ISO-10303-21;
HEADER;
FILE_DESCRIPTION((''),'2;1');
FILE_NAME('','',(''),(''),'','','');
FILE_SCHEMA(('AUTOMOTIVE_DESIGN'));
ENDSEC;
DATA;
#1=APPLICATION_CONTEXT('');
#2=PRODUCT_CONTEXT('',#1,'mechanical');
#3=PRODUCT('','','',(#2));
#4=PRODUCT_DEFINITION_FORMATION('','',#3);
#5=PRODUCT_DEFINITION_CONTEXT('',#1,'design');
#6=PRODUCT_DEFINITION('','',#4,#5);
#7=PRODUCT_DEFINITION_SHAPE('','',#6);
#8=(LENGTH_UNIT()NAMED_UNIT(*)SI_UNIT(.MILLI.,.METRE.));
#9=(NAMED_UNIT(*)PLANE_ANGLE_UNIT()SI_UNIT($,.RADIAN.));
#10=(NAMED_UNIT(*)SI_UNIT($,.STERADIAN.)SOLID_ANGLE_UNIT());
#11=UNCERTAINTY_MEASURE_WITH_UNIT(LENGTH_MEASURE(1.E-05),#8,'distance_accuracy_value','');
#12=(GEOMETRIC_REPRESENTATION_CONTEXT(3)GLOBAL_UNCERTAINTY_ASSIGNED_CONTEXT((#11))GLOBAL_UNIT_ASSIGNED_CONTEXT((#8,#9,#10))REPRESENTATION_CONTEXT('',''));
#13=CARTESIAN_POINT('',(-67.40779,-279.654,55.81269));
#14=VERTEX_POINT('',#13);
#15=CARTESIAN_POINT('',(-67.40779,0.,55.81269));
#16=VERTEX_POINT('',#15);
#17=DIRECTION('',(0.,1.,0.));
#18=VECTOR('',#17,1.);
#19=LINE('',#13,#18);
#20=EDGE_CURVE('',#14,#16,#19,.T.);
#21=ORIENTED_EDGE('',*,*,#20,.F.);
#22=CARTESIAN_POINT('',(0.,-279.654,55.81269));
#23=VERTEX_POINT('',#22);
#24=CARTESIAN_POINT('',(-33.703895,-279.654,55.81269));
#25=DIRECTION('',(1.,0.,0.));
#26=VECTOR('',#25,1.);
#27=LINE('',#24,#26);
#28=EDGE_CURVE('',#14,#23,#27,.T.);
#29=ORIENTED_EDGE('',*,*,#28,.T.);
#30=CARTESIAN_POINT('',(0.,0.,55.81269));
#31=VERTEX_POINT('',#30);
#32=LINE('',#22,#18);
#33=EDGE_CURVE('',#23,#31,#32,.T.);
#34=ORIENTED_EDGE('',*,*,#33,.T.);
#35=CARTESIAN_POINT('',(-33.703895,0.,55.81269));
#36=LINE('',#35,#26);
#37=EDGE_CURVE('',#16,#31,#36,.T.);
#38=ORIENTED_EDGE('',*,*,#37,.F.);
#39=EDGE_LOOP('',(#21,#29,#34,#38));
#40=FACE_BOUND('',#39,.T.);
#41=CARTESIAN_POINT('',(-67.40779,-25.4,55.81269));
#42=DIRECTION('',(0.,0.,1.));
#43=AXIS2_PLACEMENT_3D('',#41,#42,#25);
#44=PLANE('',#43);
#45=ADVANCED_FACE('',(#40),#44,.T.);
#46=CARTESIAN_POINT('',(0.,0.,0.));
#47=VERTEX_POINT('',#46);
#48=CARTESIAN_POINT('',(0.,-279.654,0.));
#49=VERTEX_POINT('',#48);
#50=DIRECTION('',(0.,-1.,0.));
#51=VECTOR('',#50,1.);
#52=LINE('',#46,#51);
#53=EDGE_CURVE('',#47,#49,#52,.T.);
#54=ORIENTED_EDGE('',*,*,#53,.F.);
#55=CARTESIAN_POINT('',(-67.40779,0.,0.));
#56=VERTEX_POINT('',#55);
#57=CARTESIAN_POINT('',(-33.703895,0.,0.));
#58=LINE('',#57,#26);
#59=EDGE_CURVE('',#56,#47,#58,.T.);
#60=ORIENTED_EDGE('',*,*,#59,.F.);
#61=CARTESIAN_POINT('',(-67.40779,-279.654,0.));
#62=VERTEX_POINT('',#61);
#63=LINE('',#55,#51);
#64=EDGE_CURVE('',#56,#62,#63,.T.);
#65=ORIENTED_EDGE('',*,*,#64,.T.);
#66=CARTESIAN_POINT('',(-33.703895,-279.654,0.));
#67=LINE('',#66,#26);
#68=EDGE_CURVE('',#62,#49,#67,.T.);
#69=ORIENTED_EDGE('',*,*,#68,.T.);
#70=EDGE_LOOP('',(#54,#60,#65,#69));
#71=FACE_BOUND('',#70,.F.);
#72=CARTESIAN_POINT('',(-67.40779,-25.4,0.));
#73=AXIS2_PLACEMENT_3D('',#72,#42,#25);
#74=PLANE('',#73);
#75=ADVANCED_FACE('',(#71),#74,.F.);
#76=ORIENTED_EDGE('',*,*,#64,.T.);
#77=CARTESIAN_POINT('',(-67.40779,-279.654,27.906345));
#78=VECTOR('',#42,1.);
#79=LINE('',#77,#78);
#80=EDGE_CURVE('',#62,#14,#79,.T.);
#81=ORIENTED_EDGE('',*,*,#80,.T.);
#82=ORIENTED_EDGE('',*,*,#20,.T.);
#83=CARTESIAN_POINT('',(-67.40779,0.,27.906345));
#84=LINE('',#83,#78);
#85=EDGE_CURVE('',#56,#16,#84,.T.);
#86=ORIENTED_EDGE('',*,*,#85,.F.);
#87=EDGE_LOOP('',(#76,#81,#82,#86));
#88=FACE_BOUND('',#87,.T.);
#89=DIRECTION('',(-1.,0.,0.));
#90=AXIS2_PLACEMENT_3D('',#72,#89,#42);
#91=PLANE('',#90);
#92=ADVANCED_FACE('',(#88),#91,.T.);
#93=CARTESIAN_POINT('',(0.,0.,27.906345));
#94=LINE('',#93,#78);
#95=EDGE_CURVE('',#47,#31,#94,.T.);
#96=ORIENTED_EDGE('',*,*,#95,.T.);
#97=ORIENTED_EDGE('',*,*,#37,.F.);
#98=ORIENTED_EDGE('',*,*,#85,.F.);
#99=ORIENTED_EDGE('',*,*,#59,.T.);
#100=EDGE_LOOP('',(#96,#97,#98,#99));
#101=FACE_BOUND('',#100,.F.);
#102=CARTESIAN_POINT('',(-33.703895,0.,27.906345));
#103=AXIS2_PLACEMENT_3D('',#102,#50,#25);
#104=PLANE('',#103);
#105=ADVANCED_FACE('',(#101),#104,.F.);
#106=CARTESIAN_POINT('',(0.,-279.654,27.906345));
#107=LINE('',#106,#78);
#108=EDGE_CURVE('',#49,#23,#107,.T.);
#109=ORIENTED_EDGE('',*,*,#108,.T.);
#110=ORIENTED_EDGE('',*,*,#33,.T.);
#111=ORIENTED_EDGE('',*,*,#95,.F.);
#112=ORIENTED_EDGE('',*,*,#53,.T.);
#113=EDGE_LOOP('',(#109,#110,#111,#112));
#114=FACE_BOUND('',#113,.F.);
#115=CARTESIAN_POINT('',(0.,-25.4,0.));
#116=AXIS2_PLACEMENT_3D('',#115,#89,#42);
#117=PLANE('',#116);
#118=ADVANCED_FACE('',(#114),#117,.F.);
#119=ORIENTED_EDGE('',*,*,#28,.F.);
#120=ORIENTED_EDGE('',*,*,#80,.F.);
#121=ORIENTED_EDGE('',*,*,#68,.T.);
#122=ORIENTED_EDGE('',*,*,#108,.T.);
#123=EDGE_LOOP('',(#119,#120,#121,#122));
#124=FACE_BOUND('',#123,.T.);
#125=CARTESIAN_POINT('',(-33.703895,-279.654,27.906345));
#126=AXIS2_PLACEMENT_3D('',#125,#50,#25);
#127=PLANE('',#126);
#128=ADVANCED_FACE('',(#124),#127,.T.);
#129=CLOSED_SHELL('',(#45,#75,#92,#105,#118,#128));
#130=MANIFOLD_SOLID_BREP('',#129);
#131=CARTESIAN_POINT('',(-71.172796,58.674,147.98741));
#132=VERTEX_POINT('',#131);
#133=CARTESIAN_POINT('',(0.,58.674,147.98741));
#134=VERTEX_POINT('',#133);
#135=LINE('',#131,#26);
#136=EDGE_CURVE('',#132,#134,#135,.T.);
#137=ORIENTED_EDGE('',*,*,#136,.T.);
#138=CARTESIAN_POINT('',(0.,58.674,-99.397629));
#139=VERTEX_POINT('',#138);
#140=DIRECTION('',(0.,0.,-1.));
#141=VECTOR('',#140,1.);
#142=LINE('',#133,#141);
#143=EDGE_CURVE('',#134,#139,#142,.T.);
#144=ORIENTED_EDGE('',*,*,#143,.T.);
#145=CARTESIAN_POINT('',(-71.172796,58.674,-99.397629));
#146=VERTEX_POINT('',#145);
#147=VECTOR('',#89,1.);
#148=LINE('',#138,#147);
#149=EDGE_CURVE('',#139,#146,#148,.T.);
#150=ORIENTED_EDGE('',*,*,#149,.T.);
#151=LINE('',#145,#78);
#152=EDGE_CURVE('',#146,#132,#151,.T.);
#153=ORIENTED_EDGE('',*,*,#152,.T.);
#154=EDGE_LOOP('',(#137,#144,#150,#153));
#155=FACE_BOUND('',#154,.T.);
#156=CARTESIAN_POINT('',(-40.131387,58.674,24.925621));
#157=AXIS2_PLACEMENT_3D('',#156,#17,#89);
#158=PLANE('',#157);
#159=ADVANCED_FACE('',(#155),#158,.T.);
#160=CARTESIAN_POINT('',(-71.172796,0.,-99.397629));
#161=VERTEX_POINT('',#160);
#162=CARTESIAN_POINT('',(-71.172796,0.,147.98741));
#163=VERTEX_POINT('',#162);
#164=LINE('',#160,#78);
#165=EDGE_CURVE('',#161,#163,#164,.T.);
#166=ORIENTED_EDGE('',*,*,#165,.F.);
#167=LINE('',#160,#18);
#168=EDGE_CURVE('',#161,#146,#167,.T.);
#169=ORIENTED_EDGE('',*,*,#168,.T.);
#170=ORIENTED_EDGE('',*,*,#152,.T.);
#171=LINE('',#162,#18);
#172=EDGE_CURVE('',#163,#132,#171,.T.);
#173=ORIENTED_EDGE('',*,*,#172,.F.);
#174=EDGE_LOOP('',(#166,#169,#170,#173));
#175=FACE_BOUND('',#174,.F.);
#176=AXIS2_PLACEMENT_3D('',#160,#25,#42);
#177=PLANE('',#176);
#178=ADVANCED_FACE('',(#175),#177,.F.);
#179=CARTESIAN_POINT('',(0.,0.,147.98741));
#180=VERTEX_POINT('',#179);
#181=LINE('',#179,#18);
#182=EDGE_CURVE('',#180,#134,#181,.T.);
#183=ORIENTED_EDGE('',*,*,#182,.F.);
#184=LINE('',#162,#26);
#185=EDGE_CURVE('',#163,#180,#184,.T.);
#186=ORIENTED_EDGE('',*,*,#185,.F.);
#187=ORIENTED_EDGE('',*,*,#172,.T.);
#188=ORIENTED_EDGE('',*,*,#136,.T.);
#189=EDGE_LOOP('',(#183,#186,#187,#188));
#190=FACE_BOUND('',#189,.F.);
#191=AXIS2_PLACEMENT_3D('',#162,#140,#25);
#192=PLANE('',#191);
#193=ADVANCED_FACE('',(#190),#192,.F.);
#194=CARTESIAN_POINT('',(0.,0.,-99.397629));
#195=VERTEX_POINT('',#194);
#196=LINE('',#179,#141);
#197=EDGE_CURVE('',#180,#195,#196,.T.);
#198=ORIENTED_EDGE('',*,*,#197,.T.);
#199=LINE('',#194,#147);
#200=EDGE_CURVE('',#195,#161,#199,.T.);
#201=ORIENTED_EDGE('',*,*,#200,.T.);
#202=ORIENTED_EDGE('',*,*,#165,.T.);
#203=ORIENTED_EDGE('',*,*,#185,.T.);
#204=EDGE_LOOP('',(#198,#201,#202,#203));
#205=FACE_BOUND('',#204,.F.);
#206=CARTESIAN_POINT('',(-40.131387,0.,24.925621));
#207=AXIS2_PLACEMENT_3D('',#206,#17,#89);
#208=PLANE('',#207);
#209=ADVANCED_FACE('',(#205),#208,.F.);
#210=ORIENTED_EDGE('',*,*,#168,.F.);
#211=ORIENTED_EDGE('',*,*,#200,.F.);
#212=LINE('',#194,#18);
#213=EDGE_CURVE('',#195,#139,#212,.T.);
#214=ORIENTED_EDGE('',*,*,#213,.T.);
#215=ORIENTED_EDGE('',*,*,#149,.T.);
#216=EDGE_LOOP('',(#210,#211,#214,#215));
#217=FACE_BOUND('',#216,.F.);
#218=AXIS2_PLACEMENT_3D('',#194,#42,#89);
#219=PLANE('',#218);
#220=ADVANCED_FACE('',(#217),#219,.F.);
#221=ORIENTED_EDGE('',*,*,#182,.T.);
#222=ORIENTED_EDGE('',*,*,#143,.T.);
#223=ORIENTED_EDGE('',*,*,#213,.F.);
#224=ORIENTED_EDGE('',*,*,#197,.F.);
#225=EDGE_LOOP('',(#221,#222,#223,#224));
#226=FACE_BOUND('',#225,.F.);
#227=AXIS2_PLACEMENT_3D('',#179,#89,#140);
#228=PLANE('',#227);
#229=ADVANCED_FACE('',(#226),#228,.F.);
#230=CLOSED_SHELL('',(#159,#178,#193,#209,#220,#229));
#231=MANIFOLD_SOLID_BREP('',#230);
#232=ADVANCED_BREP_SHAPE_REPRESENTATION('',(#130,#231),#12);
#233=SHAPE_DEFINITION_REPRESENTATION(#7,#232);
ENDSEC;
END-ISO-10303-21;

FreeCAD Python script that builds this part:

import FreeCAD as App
import Part
import Sketcher
Q = App.Units.Quantity

doc = App.newDocument("Part")
body = doc.addObject("PartDesign::Body", "Body")

sketch1 = doc.addObject("Sketcher::SketchObject", "Sketch")
body.addObject(sketch1)
sketch1.AttachmentSupport = (doc.XZ_Plane, [""])
sketch1.MapMode = "FlatFace"
sketch1.addGeometry([
    Part.LineSegment(App.Vector(-67, 56, 0), App.Vector(-67, 0, 0)),
    Part.LineSegment(App.Vector(-67, 0, 0), App.Vector(0, 0, 0)),
    Part.LineSegment(App.Vector(0, 0, 0), App.Vector(0, 56, 0)),
    Part.LineSegment(App.Vector(0, 56, 0), App.Vector(-67, 56, 0)),
], False)
sketch1.addConstraint([
    Sketcher.Constraint("Coincident", 0, 2, 1, 1),
    Sketcher.Constraint("Coincident", 1, 2, 2, 1),
    Sketcher.Constraint("Coincident", 2, 2, 3, 1),
    Sketcher.Constraint("Coincident", 3, 2, 0, 1),
    Sketcher.Constraint("Vertical", 0),
    Sketcher.Constraint("Horizontal", 1),
    Sketcher.Constraint("Vertical", 2),
    Sketcher.Constraint("Horizontal", 3),
    Sketcher.Constraint("Coincident", 1, 2, -1, 1),
    Sketcher.Constraint("DistanceX", 1, 1, 1, 2, 67.40779),
    Sketcher.Constraint("DistanceY", 0, 2, 0, 1, 55.81269),
])
pad1 = doc.addObject("PartDesign::Pad", "Pad")
body.addObject(pad1)
pad1.Profile = sketch1
pad1.Length = Q("1 in")

sketch2 = doc.addObject("Sketcher::SketchObject", "Sketch001")
body.addObject(sketch2)
sketch2.AttachmentSupport = (doc.XZ_Plane, [""])
sketch2.MapMode = "FlatFace"
sketch2.AttachmentOffset = App.Placement(App.Vector(0, 0, 1 * 25.4), App.Rotation())
sketch2.addGeometry([
    Part.LineSegment(App.Vector(-67, 56, 0), App.Vector(-67, 0, 0)),
    Part.LineSegment(App.Vector(-67, 0, 0), App.Vector(0, 0, 0)),
    Part.LineSegment(App.Vector(0, 0, 0), App.Vector(0, 56, 0)),
    Part.LineSegment(App.Vector(0, 56, 0), App.Vector(-67, 56, 0)),
], False)
sketch2.addConstraint([
    Sketcher.Constraint("Coincident", 0, 2, 1, 1),
    Sketcher.Constraint("Coincident", 1, 2, 2, 1),
    Sketcher.Constraint("Coincident", 2, 2, 3, 1),
    Sketcher.Constraint("Coincident", 3, 2, 0, 1),
    Sketcher.Constraint("Vertical", 0),
    Sketcher.Constraint("Horizontal", 1),
    Sketcher.Constraint("Vertical", 2),
    Sketcher.Constraint("Horizontal", 3),
    Sketcher.Constraint("Coincident", 1, 2, -1, 1),
    Sketcher.Constraint("DistanceX", 1, 1, 1, 2, 67.40779),
    Sketcher.Constraint("DistanceY", 0, 2, 0, 1, 55.81269),
])
pad2 = doc.addObject("PartDesign::Pad", "Pad001")
body.addObject(pad2)
pad2.Profile = sketch2
pad2.Length = Q("10.01 in")
body2 = doc.addObject("PartDesign::Body", "Body001")

sketch3 = doc.addObject("Sketcher::SketchObject", "Sketch002")
body2.addObject(sketch3)
sketch3.AttachmentSupport = (doc.getObject("XZ_Plane001"), [""])
sketch3.MapMode = "FlatFace"
sketch3.addGeometry([
    Part.LineSegment(App.Vector(-71, -99, 0), App.Vector(-71, 148, 0)),
    Part.LineSegment(App.Vector(-71, 148, 0), App.Vector(0, 148, 0)),
    Part.LineSegment(App.Vector(0, 148, 0), App.Vector(0, -99, 0)),
    Part.LineSegment(App.Vector(0, -99, 0), App.Vector(-71, -99, 0)),
], False)
sketch3.addConstraint([
    Sketcher.Constraint("Coincident", 0, 2, 1, 1),
    Sketcher.Constraint("Coincident", 1, 2, 2, 1),
    Sketcher.Constraint("Coincident", 2, 2, 3, 1),
    Sketcher.Constraint("Coincident", 3, 2, 0, 1),
    Sketcher.Constraint("Vertical", 0),
    Sketcher.Constraint("Horizontal", 1),
    Sketcher.Constraint("Vertical", 2),
    Sketcher.Constraint("Horizontal", 3),
    Sketcher.Constraint("PointOnObject", 1, 2, -2),
    Sketcher.Constraint("DistanceY", 0, 1, 0, 2, 247.385039),
    Sketcher.Constraint("DistanceX", 1, 1, 1, 2, 71.172796),
    Sketcher.Constraint("DistanceY", -1, 1, 0, 2, 147.98741),
])
pad3 = doc.addObject("PartDesign::Pad", "Pad002")
body2.addObject(pad3)
pad3.Profile = sketch3
pad3.Length = Q("2.31 in")
pad3.Reversed = True

doc.recompute()
